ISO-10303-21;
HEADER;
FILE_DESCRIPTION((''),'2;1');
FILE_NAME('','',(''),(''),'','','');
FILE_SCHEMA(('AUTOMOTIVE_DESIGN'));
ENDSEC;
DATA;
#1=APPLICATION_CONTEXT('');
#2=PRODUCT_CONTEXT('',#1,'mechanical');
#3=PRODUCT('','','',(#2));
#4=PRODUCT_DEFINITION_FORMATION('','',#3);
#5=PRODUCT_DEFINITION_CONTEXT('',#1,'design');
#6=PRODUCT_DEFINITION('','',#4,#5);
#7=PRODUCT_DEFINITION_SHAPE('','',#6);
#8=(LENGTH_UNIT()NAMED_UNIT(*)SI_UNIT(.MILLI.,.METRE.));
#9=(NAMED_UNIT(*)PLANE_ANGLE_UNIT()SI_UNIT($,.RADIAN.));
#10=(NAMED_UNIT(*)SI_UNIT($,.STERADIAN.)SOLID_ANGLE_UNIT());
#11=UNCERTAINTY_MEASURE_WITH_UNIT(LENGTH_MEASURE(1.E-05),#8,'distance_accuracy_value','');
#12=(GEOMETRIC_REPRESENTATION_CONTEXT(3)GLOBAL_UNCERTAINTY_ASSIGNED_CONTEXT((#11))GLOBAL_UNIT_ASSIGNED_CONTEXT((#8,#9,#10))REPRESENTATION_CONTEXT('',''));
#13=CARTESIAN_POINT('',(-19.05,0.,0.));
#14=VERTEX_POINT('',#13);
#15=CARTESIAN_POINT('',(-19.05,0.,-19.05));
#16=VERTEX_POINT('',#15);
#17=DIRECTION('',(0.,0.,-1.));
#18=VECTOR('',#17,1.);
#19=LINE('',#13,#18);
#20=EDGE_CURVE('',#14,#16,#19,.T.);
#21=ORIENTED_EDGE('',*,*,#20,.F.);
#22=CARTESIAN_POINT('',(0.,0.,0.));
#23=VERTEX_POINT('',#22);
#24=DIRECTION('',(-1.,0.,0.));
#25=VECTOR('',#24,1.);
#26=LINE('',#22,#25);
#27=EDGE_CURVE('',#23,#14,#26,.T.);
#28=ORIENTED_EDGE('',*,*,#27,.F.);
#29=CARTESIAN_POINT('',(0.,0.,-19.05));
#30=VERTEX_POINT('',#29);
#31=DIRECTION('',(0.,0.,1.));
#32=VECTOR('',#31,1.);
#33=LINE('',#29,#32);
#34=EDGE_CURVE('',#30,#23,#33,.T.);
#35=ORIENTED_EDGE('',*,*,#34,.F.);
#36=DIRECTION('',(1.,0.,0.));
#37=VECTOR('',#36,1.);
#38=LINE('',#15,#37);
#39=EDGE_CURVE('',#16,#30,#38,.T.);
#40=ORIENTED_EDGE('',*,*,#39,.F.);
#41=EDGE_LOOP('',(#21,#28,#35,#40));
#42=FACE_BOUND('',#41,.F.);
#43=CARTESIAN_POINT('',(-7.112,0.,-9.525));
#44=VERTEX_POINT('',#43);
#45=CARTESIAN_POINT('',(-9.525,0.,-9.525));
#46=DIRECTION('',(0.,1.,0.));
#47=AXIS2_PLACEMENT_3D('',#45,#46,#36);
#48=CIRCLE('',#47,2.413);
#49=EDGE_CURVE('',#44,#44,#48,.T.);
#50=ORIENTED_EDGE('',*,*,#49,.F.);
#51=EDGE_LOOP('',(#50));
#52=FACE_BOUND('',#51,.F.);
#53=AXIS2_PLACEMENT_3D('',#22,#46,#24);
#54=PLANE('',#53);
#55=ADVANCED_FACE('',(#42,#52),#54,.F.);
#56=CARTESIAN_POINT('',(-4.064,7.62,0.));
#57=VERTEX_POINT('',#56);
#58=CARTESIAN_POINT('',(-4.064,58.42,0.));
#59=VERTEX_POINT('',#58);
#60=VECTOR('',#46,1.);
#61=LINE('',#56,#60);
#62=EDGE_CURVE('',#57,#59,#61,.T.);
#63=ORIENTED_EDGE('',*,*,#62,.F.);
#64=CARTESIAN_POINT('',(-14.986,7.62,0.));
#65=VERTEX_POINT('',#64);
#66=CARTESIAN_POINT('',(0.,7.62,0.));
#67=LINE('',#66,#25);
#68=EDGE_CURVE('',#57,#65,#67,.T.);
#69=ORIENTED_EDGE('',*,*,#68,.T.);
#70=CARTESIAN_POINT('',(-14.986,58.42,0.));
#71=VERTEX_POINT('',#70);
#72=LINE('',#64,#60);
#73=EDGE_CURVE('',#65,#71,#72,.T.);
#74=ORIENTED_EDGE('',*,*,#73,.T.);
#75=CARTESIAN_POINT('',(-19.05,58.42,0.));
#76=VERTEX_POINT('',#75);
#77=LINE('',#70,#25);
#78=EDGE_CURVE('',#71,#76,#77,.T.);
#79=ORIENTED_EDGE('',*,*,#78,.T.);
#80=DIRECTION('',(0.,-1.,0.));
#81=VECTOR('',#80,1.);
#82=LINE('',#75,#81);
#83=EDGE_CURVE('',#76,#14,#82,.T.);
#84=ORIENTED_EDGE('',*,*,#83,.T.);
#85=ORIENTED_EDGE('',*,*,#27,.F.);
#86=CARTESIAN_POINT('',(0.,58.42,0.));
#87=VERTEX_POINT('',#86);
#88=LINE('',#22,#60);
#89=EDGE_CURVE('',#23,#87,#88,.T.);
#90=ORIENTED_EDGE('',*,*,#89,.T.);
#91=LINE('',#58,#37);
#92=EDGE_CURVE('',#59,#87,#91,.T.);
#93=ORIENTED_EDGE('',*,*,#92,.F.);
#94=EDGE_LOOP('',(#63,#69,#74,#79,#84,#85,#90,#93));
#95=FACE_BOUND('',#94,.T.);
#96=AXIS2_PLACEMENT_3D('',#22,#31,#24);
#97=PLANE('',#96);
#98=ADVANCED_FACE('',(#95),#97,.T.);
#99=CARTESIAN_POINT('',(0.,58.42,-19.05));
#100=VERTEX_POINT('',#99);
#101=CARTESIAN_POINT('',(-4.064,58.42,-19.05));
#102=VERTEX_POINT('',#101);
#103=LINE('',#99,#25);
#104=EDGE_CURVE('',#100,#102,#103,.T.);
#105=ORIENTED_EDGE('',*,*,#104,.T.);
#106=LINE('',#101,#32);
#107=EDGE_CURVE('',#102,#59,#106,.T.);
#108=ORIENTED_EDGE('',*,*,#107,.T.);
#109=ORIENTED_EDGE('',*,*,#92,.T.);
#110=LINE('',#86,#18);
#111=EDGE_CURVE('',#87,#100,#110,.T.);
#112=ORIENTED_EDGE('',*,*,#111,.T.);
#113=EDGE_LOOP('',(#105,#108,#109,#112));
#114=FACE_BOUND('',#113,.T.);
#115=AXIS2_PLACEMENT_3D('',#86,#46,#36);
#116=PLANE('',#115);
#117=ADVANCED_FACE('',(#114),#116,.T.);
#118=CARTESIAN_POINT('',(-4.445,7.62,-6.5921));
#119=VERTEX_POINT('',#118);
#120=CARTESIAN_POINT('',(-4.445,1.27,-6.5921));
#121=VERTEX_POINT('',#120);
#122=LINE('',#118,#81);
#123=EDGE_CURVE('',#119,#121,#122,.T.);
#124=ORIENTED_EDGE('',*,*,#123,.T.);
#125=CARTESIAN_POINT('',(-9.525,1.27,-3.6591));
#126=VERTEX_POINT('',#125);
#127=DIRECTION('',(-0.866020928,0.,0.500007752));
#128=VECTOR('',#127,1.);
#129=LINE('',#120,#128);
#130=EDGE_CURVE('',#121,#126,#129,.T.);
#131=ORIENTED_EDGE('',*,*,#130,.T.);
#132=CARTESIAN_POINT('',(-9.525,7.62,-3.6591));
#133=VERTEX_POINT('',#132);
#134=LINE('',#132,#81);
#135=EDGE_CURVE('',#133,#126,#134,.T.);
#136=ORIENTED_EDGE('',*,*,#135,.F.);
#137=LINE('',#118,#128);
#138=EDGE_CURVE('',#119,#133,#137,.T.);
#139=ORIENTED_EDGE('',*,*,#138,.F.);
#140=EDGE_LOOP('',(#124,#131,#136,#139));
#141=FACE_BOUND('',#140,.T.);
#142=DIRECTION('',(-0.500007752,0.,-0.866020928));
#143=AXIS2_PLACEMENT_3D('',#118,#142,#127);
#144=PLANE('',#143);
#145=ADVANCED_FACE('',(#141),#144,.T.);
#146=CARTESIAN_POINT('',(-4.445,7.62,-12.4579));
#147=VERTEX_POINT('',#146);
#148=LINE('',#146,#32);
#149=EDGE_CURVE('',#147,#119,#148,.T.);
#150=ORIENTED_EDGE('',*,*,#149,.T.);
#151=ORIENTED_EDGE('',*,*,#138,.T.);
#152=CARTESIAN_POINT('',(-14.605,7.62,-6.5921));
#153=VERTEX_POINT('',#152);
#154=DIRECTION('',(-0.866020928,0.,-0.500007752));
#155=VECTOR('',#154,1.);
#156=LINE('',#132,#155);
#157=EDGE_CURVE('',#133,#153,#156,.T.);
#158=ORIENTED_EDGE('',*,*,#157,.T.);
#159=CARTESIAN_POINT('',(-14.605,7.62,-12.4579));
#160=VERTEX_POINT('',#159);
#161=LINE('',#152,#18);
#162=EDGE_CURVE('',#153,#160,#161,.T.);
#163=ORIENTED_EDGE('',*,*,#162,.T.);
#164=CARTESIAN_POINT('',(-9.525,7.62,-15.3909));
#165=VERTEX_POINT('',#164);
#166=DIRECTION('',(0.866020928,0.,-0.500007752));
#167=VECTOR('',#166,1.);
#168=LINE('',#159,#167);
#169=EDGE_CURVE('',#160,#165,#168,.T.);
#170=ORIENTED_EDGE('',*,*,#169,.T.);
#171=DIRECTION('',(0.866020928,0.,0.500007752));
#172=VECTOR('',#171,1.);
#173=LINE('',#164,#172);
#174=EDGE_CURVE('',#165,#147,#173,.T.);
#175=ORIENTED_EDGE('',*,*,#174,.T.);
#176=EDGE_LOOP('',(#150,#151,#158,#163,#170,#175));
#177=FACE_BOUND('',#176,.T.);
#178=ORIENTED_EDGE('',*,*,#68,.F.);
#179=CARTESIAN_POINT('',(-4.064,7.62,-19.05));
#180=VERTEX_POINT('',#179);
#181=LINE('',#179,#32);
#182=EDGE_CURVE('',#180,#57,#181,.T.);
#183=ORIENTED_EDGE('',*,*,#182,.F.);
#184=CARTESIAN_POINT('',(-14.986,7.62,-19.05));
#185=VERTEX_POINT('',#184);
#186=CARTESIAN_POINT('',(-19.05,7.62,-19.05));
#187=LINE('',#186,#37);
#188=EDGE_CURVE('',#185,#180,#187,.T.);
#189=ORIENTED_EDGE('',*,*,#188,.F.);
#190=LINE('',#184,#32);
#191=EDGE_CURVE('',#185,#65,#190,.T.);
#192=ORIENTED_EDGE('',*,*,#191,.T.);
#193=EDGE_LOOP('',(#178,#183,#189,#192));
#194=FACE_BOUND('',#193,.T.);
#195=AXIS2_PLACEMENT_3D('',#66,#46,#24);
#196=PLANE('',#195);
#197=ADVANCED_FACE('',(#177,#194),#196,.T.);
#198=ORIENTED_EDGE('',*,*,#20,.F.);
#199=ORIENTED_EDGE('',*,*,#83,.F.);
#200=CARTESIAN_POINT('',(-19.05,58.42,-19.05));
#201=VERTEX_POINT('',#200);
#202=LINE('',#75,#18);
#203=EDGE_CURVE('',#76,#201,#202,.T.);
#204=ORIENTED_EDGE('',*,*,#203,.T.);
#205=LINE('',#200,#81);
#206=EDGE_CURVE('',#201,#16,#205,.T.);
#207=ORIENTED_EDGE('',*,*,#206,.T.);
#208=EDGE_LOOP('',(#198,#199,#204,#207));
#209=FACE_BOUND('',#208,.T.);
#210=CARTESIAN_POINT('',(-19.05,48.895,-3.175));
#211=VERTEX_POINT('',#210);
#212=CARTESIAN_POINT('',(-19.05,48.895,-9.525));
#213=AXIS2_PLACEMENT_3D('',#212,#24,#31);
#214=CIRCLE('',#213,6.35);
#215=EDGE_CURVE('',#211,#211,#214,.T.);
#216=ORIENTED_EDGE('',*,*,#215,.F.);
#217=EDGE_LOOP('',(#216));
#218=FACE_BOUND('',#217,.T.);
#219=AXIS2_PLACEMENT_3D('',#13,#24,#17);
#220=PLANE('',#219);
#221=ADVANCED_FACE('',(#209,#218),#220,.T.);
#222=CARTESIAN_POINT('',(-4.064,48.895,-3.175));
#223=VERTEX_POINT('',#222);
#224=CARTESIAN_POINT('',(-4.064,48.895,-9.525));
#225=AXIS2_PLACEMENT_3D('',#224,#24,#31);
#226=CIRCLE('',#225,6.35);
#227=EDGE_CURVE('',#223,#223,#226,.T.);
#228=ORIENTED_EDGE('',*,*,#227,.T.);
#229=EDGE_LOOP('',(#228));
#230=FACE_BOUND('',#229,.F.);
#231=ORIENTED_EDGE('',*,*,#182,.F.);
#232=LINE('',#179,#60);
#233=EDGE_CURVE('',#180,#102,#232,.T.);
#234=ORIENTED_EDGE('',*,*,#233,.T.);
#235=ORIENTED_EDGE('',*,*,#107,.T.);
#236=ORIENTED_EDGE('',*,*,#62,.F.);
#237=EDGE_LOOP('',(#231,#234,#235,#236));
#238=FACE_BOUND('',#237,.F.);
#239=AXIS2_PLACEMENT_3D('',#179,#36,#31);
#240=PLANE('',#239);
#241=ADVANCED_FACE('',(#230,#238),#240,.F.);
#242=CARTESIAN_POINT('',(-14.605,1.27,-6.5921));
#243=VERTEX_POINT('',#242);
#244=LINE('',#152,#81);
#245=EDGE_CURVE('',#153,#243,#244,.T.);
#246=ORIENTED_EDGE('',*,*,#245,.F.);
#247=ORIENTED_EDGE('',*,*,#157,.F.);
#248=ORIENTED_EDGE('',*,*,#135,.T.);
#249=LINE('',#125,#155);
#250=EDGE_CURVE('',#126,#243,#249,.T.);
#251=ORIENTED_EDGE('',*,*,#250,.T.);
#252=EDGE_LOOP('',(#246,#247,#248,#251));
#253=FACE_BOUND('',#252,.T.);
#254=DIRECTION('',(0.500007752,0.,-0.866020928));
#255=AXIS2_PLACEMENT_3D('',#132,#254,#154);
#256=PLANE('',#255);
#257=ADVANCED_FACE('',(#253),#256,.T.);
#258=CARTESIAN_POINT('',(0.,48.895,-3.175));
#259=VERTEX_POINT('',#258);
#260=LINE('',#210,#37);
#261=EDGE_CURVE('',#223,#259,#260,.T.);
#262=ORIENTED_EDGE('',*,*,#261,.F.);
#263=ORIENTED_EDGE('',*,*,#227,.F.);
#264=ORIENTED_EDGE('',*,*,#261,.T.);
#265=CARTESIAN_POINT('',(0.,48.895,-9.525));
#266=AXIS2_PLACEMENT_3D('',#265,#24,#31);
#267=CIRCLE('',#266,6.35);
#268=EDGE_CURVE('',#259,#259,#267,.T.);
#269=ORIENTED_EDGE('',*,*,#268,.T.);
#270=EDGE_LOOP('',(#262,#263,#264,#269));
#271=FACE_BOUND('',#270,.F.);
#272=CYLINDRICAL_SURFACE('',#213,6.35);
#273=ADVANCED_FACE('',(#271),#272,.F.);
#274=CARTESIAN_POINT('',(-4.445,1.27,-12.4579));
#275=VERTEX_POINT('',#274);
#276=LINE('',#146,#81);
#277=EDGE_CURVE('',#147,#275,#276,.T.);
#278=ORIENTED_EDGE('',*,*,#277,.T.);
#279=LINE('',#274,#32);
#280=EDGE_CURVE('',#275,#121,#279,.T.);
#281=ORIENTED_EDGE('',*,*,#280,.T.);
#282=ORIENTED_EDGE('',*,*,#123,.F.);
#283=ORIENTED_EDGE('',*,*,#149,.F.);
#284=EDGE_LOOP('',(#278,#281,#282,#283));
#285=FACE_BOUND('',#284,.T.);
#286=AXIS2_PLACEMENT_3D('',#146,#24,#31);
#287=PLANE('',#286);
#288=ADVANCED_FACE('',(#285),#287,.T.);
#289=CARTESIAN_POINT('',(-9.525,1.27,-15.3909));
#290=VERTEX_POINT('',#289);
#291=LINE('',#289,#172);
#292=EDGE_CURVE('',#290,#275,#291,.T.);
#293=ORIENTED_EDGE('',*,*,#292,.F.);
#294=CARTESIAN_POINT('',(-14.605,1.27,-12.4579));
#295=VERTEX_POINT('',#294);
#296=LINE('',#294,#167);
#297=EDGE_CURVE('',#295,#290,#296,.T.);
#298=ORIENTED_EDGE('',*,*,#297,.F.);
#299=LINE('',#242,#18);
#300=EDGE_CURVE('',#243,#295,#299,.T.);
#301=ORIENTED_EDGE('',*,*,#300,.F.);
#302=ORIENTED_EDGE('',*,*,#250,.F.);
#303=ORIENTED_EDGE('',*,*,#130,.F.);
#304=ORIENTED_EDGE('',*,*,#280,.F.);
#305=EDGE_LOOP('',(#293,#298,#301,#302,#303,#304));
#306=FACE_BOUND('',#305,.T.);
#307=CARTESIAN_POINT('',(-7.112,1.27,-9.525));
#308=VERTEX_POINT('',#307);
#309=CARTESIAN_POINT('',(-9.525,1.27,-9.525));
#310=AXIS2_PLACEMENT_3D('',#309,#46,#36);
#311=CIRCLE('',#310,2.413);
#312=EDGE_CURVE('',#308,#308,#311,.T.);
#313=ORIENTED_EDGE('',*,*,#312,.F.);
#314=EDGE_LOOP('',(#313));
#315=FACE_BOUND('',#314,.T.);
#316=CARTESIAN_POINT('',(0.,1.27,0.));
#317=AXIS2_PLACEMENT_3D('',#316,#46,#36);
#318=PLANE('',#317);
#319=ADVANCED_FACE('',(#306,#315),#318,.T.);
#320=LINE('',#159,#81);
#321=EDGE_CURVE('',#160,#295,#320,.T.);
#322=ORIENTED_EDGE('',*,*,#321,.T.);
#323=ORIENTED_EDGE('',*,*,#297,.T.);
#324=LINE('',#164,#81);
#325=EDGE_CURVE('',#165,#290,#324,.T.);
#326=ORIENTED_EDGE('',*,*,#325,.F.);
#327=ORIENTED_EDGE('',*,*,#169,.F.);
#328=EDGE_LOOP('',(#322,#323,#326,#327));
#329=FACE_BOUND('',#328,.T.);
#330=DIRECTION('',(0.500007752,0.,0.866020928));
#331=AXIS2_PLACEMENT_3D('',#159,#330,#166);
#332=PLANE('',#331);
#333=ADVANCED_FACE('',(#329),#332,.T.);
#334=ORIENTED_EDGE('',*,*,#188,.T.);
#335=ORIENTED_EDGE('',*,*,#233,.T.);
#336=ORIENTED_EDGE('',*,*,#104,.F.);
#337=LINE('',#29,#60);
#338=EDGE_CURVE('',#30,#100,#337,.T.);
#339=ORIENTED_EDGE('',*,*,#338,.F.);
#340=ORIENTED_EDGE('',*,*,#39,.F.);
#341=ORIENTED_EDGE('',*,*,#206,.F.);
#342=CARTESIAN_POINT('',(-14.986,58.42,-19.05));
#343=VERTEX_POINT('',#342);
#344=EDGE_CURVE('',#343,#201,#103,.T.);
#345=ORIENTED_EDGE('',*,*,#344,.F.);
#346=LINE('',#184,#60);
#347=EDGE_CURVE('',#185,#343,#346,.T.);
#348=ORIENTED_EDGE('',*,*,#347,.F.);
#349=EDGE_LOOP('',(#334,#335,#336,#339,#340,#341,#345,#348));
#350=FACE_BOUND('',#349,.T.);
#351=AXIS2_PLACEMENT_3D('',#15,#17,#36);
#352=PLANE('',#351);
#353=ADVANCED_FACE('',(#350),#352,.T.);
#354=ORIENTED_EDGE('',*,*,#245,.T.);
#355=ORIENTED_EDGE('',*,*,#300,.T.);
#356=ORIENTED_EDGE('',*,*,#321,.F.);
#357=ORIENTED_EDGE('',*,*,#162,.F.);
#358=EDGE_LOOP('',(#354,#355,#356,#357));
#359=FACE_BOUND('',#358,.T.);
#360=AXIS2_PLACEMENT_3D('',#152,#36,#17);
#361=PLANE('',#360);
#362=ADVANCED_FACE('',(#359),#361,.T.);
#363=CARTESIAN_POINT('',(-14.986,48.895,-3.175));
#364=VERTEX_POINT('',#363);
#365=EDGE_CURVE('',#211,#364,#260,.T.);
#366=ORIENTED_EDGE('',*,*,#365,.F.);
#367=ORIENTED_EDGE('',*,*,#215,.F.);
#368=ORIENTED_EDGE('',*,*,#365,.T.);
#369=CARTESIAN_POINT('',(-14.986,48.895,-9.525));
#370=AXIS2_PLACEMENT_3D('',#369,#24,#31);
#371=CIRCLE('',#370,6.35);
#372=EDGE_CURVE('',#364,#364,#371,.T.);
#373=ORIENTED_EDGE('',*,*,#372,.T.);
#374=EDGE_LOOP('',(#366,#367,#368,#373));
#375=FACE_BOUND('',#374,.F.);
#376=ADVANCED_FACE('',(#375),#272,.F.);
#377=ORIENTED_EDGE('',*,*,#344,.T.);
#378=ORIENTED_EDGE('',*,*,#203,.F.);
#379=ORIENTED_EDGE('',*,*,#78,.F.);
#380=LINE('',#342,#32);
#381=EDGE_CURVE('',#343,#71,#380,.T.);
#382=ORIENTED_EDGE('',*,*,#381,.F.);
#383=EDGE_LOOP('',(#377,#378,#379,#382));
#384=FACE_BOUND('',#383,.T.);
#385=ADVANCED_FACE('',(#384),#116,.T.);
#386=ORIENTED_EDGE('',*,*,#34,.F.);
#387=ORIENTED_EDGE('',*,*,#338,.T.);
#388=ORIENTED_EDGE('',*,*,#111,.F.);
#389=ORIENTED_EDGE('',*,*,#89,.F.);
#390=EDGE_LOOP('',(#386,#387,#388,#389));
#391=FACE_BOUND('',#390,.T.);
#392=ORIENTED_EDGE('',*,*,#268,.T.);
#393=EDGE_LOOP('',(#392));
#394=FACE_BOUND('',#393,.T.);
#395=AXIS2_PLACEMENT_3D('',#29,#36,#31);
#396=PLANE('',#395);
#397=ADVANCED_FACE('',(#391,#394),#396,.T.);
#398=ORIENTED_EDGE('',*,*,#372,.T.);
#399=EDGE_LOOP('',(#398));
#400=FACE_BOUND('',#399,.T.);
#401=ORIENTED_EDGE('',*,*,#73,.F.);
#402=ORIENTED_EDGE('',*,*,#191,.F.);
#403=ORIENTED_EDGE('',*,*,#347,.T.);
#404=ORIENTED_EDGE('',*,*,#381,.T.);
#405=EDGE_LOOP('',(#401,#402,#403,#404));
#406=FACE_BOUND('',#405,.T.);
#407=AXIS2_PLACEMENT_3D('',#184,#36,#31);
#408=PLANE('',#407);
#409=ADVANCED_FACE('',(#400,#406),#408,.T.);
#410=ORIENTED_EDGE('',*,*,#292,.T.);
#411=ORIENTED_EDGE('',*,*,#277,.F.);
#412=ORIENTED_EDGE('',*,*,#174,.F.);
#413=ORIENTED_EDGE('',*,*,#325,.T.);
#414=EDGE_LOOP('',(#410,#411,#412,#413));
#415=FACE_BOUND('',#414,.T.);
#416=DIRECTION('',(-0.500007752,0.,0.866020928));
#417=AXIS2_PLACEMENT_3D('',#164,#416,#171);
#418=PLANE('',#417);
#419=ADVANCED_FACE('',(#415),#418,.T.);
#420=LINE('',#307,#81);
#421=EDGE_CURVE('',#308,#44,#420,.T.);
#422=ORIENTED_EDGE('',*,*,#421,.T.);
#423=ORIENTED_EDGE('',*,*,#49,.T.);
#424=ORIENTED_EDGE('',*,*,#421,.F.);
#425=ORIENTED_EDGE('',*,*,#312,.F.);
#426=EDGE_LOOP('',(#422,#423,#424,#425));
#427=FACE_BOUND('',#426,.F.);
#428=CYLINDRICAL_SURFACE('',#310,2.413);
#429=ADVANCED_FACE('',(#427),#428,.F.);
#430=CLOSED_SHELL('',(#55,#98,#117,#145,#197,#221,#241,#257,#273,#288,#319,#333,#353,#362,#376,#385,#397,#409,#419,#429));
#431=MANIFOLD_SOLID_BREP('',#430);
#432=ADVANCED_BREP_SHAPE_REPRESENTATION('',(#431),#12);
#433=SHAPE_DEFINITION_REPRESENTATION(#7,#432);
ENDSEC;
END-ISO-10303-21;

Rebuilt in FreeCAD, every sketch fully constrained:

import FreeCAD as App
import Part
import Sketcher
from FreeCAD import Vector
Q = App.Units.Quantity

doc = App.newDocument("Part")
body = doc.addObject("PartDesign::Body", "Body")

# Sketch on XZ plane
sketch1 = doc.addObject("Sketcher::SketchObject", "Sketch")
body.addObject(sketch1)
sketch1.AttachmentSupport = (doc.XZ_Plane, [""])
sketch1.MapMode = "FlatFace"
sketch1.addGeometry([
    Part.LineSegment(Vector(-19, 0, 0), Vector(0, 0, 0)),
    Part.LineSegment(Vector(0, 0, 0), Vector(0, -19, 0)),
    Part.LineSegment(Vector(0, -19, 0), Vector(-19, -19, 0)),
    Part.LineSegment(Vector(-19, -19, 0), Vector(-19, 0, 0)),
], False)
sketch1.addConstraint([
    Sketcher.Constraint("Coincident", 0, 2, 1, 1),
    Sketcher.Constraint("Coincident", 1, 2, 2, 1),
    Sketcher.Constraint("Coincident", 2, 2, 3, 1),
    Sketcher.Constraint("Coincident", 3, 2, 0, 1),
    Sketcher.Constraint("Horizontal", 0),
    Sketcher.Constraint("Vertical", 1),
    Sketcher.Constraint("Horizontal", 2),
    Sketcher.Constraint("Vertical", 3),
    Sketcher.Constraint("Coincident", 0, 2, -1, 1),
    Sketcher.Constraint("Equal", 2, 1),
    Sketcher.Constraint("DistanceX", 0, 1, 0, 2, Q("0.75 in")),
])
pad1 = doc.addObject("PartDesign::Pad", "Pad")
body.addObject(pad1)
pad1.Profile = sketch1
pad1.Length = Q("0.3 in")
pad1.Reversed = True

# Sketch on XZ plane
sketch2 = doc.addObject("Sketcher::SketchObject", "Sketch001")
body.addObject(sketch2)
sketch2.AttachmentSupport = (doc.XZ_Plane, [""])
sketch2.MapMode = "FlatFace"
sketch2.AttachmentOffset = App.Placement(Vector(0, 0, -0.3 * 25.4), App.Rotation())
sketch2.addGeometry([
    Part.LineSegment(Vector(-15, -7, 0), Vector(-10, -4, 0)),  # 0
    Part.LineSegment(Vector(-10, -4, 0), Vector(-4, -7, 0)),  # 1
    Part.LineSegment(Vector(-4, -7, 0), Vector(-4, -12, 0)),  # 2
    Part.LineSegment(Vector(-4, -12, 0), Vector(-10, -15, 0)),  # 3
    Part.LineSegment(Vector(-10, -15, 0), Vector(-15, -12, 0)),  # 4
    Part.LineSegment(Vector(-15, -12, 0), Vector(-15, -7, 0)),  # 5
], False)
sketch2.addConstraint([
    Sketcher.Constraint("Coincident", 0, 2, 1, 1),
    Sketcher.Constraint("Coincident", 1, 2, 2, 1),
    Sketcher.Constraint("Coincident", 2, 2, 3, 1),
    Sketcher.Constraint("Coincident", 3, 2, 4, 1),
    Sketcher.Constraint("Coincident", 4, 2, 5, 1),
    Sketcher.Constraint("Coincident", 5, 2, 0, 1),
    Sketcher.Constraint("Vertical", 2),
    Sketcher.Constraint("Vertical", 5),
    Sketcher.Constraint("Parallel", 0, 3),
    Sketcher.Constraint("Parallel", 1, 4),
    Sketcher.Constraint("Horizontal", 2, 2, 4, 2),
    Sketcher.Constraint("Horizontal", 1, 2, 5, 2),
    Sketcher.Constraint("Vertical", 0, 2, 3, 2),
    Sketcher.Constraint("DistanceX", 4, 2, 2, 2, Q("0.4 in")),
    Sketcher.Constraint("DistanceX", 0, 2, -1, 1, Q("0.375 in")),
    Sketcher.Constraint("Angle", 0, Q("30.0005 deg")),
    Sketcher.Constraint("DistanceY", 2, 2, 2, 1, Q("5.8658 mm")),
    Sketcher.Constraint("DistanceY", 0, 2, -1, 1, Q("3.659 mm")),
])
pocket1 = doc.addObject("PartDesign::Pocket", "Pocket")
body.addObject(pocket1)
pocket1.Profile = sketch2
pocket1.Length = Q("0.25 in")
pocket1.Reversed = True

# Sketch on XZ plane
sketch3 = doc.addObject("Sketcher::SketchObject", "Sketch002")
body.addObject(sketch3)
sketch3.AttachmentSupport = (doc.XZ_Plane, [""])
sketch3.MapMode = "FlatFace"
sketch3.AttachmentOffset = App.Placement(Vector(0, 0, -0.05 * 25.4), App.Rotation())
sketch3.addGeometry(Part.Circle(Vector(-9.5, -9.5, 0), Vector(0, 0, 1), 2.4), False)
sketch3.addConstraint([
    Sketcher.Constraint("Diameter", 0, Q("0.19 in")),
    Sketcher.Constraint("DistanceX", 0, 3, -1, 1, Q("0.375 in")),
    Sketcher.Constraint("DistanceY", 0, 3, -1, 1, Q("0.375 in")),
])
pocket2 = doc.addObject("PartDesign::Pocket", "Pocket001")
body.addObject(pocket2)
pocket2.Profile = sketch3
pocket2.Length = Q("0.5 in")
pocket2.Reversed = True

# Sketch on XZ plane
sketch4 = doc.addObject("Sketcher::SketchObject", "Sketch003")
body.addObject(sketch4)
sketch4.AttachmentSupport = (doc.XZ_Plane, [""])
sketch4.MapMode = "FlatFace"
sketch4.AttachmentOffset = App.Placement(Vector(0, 0, -0.3 * 25.4), App.Rotation())
sketch4.addGeometry([
    Part.LineSegment(Vector(0, 0, 0), Vector(0, -19.1, 0)),  # 0
    Part.LineSegment(Vector(0, -19.1, 0), Vector(-4.1, -19.1, 0)),  # 1
    Part.LineSegment(Vector(-4.1, -19.1, 0), Vector(-4.1, 0, 0)),  # 2
    Part.LineSegment(Vector(-4.1, 0, 0), Vector(0, 0, 0)),  # 3
    Part.LineSegment(Vector(-15, 0, 0), Vector(-15, -19.1, 0)),  # 4
    Part.LineSegment(Vector(-15, -19.1, 0), Vector(-19.1, -19.1, 0)),  # 5
    Part.LineSegment(Vector(-19.1, -19.1, 0), Vector(-19.1, 0, 0)),  # 6
    Part.LineSegment(Vector(-19.1, 0, 0), Vector(-15, 0, 0)),  # 7
], False)
sketch4.addConstraint([
    Sketcher.Constraint("Coincident", 0, 2, 1, 1),
    Sketcher.Constraint("Coincident", 1, 2, 2, 1),
    Sketcher.Constraint("Coincident", 2, 2, 3, 1),
    Sketcher.Constraint("Coincident", 3, 2, 0, 1),
    Sketcher.Constraint("Coincident", 4, 2, 5, 1),
    Sketcher.Constraint("Coincident", 5, 2, 6, 1),
    Sketcher.Constraint("Coincident", 6, 2, 7, 1),
    Sketcher.Constraint("Coincident", 7, 2, 4, 1),
    Sketcher.Constraint("Vertical", 0),
    Sketcher.Constraint("Horizontal", 1),
    Sketcher.Constraint("Vertical", 2),
    Sketcher.Constraint("Horizontal", 3),
    Sketcher.Constraint("Vertical", 4),
    Sketcher.Constraint("Horizontal", 5),
    Sketcher.Constraint("Vertical", 6),
    Sketcher.Constraint("Horizontal", 7),
    Sketcher.Constraint("Coincident", 3, 2, -1, 1),
    Sketcher.Constraint("PointOnObject", 6, 2, -1),
    Sketcher.Constraint("Horizontal", 1, 2, 4, 2),
    Sketcher.Constraint("Equal", 3, 5),
    Sketcher.Constraint("DistanceX", 1, 2, 1, 1, Q("0.16 in")),
    Sketcher.Constraint("DistanceY", 0, 2, 0, 1, Q("0.75 in")),
    Sketcher.Constraint("DistanceX", 4, 2, -1, 1, Q("0.59 in")),
])
pad2 = doc.addObject("PartDesign::Pad", "Pad001")
body.addObject(pad2)
pad2.Profile = sketch4
pad2.Length = Q("2 in")
pad2.Reversed = True

# Sketch on YZ plane
sketch5 = doc.addObject("Sketcher::SketchObject", "Sketch004")
body.addObject(sketch5)
sketch5.AttachmentSupport = (doc.YZ_Plane, [""])
sketch5.MapMode = "FlatFace"
sketch5.AttachmentOffset = App.Placement(Vector(0, 0, -0.75 * 25.4), App.Rotation())
sketch5.addGeometry(Part.Circle(Vector(49, -10, 0), Vector(0, 0, 1), 6), False)
sketch5.addConstraint([
    Sketcher.Constraint("Diameter", 0, Q("0.5 in")),
    Sketcher.Constraint("DistanceY", 0, 3, -1, 1, Q("0.375 in")),
    Sketcher.Constraint("DistanceX", -1, 1, 0, 3, Q("1.925 in")),
])
pocket3 = doc.addObject("PartDesign::Pocket", "Pocket002")
body.addObject(pocket3)
pocket3.Profile = sketch5
pocket3.Length = Q("0.75 in")
pocket3.Reversed = True

doc.recompute()
